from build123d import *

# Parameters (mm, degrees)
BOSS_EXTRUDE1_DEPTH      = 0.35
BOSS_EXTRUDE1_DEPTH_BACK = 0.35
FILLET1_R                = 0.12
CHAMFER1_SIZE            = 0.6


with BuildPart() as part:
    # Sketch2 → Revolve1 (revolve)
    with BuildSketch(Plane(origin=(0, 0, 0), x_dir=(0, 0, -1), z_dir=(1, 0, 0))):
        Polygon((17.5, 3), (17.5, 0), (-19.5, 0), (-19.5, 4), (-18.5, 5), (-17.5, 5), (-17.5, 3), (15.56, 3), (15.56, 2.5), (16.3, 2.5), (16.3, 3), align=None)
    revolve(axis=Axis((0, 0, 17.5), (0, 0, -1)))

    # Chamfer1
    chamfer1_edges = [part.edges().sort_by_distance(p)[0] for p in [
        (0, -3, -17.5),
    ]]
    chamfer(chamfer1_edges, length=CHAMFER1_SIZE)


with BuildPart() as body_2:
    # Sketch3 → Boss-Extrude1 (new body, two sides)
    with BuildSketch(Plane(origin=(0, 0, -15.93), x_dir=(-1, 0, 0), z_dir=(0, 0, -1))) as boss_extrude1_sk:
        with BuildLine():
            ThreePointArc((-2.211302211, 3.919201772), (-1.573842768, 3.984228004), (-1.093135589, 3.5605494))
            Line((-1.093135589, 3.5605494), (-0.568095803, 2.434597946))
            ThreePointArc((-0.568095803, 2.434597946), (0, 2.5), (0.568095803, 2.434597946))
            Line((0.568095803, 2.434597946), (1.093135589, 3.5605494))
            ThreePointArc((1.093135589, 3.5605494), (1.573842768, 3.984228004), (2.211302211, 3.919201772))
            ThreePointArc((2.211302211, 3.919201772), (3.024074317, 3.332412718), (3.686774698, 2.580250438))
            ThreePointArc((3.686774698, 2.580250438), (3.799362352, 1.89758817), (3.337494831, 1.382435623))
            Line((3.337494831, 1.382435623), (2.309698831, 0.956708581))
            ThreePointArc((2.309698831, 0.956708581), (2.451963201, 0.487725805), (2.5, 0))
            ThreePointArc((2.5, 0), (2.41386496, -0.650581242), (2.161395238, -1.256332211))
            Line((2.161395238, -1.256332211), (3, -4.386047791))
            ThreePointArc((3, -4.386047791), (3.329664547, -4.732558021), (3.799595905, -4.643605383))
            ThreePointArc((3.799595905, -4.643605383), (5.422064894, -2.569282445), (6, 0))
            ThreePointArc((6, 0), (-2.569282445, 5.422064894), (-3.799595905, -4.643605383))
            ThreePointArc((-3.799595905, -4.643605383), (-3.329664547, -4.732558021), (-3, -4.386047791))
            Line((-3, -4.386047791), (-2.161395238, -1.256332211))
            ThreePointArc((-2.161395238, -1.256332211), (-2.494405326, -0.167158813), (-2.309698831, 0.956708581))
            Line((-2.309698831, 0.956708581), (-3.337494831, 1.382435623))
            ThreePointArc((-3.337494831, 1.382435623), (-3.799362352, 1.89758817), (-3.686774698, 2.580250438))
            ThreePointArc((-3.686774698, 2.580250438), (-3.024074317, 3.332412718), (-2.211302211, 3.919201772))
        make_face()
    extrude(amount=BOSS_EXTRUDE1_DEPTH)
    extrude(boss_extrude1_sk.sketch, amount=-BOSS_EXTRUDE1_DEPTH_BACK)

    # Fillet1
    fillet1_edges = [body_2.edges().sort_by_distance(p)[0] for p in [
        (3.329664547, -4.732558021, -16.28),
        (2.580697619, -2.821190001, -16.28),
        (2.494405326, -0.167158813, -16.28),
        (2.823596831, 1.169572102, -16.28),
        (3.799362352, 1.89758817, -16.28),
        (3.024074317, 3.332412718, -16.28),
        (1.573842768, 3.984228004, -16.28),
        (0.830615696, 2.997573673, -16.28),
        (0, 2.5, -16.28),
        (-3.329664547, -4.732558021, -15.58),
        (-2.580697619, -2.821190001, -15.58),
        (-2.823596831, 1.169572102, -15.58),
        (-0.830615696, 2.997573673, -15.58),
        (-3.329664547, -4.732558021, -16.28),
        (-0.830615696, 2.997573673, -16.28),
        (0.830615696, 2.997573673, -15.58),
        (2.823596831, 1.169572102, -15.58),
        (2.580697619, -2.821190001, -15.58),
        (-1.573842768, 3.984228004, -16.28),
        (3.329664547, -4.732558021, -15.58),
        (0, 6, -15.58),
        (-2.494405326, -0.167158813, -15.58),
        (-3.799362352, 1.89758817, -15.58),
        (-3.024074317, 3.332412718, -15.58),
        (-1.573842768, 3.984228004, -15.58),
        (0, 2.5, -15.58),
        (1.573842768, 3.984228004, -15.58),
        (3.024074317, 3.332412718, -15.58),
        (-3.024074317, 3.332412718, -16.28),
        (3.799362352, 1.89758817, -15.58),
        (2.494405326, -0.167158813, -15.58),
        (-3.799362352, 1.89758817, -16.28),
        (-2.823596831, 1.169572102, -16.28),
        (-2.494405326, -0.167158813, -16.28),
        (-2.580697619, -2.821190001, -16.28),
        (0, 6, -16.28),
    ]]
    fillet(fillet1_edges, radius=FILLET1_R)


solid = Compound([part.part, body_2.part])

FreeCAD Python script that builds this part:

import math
import FreeCAD as App
import Part
import Sketcher
Q = App.Units.Quantity


def edges_at(feature, points):
    """Names of the edges that pass closest to the given points."""
    edges = feature.Shape.Edges
    near = lambda p: min(range(len(edges)), key=lambda i: edges[i].distToShape(Part.Vertex(*p))[0])
    return sorted({f"Edge{near(p) + 1}" for p in points})


def add_polygon(sketch, points):
    """Adds a closed chain of lines whose ends are joined by coincident constraints."""
    first, n = sketch.GeometryCount, len(points)
    for a, b in zip(points, points[1:] + points[:1]):
        sketch.addGeometry(Part.LineSegment(App.Vector(*a, 0), App.Vector(*b, 0)), False)
    for i in range(n):
        sketch.addConstraint(Sketcher.Constraint("Coincident", first + i, 2, first + (i + 1) % n, 1))

doc = App.newDocument("Part")
body = doc.addObject("PartDesign::Body", "Body")

# Sketch on YZ plane
sketch1 = body.newObject("Sketcher::SketchObject", "Sketch")
sketch1.AttachmentSupport = (doc.getObject("YZ_Plane"), [""])
sketch1.MapMode = "FlatFace"
add_polygon(sketch1, [(0, -17.5), (3, -17.5), (3, -16.3), (2.5, -16.3), (2.5, -15.6), (3, -15.6), (3, 17.5), (5, 17.5), (5, 18.5), (4, 19.5), (0, 19.5)])  # lines 0-10
sketch1.addConstraint(Sketcher.Constraint("Horizontal", 0))
sketch1.addConstraint(Sketcher.Constraint("Vertical", 1))
sketch1.addConstraint(Sketcher.Constraint("Horizontal", 2))
sketch1.addConstraint(Sketcher.Constraint("Vertical", 3))
sketch1.addConstraint(Sketcher.Constraint("Horizontal", 4))
sketch1.addConstraint(Sketcher.Constraint("Vertical", 5))
sketch1.addConstraint(Sketcher.Constraint("Horizontal", 6))
sketch1.addConstraint(Sketcher.Constraint("Vertical", 7))
sketch1.addConstraint(Sketcher.Constraint("Horizontal", 9))
sketch1.addConstraint(Sketcher.Constraint("Vertical", 10))
sketch1.addConstraint(Sketcher.Constraint("Symmetric", 0, 2, 5, 2, -1))
sketch1.addConstraint(Sketcher.Constraint("PointOnObject", 9, 2, -2))
sketch1.addConstraint(Sketcher.Constraint("DistanceX", 0, 1, 0, 2, 3.0))
sketch1.addConstraint(Sketcher.Constraint("DistanceX", 6, 1, 6, 2, 2.0))
sketch1.addConstraint(Sketcher.Constraint("DistanceX", 9, 2, 9, 1, 4.0))
sketch1.addConstraint(Sketcher.Constraint("DistanceY", 7, 1, 7, 2, 1.0))
sketch1.addConstraint(Sketcher.Constraint("DistanceY", 10, 2, 10, 1, 37.0))
sketch1.addConstraint(Sketcher.Constraint("Angle", 8, Q("135 deg")))
sketch1.addConstraint(Sketcher.Constraint("DistanceX", 2, 2, 2, 1, 0.5))
sketch1.addConstraint(Sketcher.Constraint("DistanceY", 1, 1, 1, 2, 1.2))
sketch1.addConstraint(Sketcher.Constraint("DistanceY", 3, 1, 3, 2, 0.74))
revolution = body.newObject("PartDesign::Revolution", "Revolution")
revolution.Profile = sketch1
revolution.ReferenceAxis = (sketch1, ["V_Axis"])
revolution.Angle = 360
doc.recompute()

chamfer = body.newObject("PartDesign::Chamfer", "Chamfer")
chamfer.Base = (revolution, edges_at(revolution, [(0, -3, -17.5)]))
chamfer.Size = 0.6
body2 = doc.addObject("PartDesign::Body", "Body001")

# Sketch on XY plane
sketch2 = body2.newObject("Sketcher::SketchObject", "Sketch001")
sketch2.AttachmentSupport = (doc.getObject("XY_Plane001"), [""])
sketch2.MapMode = "FlatFace"
sketch2.AttachmentOffset = App.Placement(App.Vector(0, 0, -15.93), App.Rotation())
sketch2.addGeometry(Part.ArcOfCircle(Part.Circle(App.Vector(1.82, 3.22, 0), App.Vector(0, 0, 1), 0.8), math.radians(61), math.radians(155)), False)
sketch2.addGeometry(Part.LineSegment(App.Vector(1.09, 3.56, 0), App.Vector(0.57, 2.43, 0)), False)
sketch2.addGeometry(Part.ArcOfCircle(Part.Circle(App.Vector(0, 0, 0), App.Vector(0, 0, 1), 2.5), math.radians(77), math.radians(103)), False)
sketch2.addGeometry(Part.LineSegment(App.Vector(-0.57, 2.43, 0), App.Vector(-1.09, 3.56, 0)), False)
sketch2.addGeometry(Part.ArcOfCircle(Part.Circle(App.Vector(-1.82, 3.22, 0), App.Vector(0, 0, 1), 0.8), math.radians(25), math.radians(119)), False)
sketch2.addGeometry(Part.ArcOfCircle(Part.Circle(App.Vector(0, 0, 0), App.Vector(0, 0, 1), 4.5), math.radians(119), math.radians(145)), False)
sketch2.addGeometry(Part.ArcOfCircle(Part.Circle(App.Vector(-3.03, 2.12, 0), App.Vector(0, 0, 1), 0.8), math.radians(145), math.radians(247)), False)
sketch2.addGeometry(Part.LineSegment(App.Vector(-3.34, 1.38, 0), App.Vector(-2.31, 0.96, 0)), False)
sketch2.addGeometry(Part.ArcOfCircle(Part.Circle(App.Vector(0, 0, 0), App.Vector(0, 0, 1), 2.5), math.radians(157), math.radians(180)), False)
sketch2.addGeometry(Part.ArcOfCircle(Part.Circle(App.Vector(0, 0, 0), App.Vector(0, 0, 1), 2.5), math.radians(-180), math.radians(-150)), False)
sketch2.addGeometry(Part.LineSegment(App.Vector(-2.16, -1.26, 0), App.Vector(-3, -4.39, 0)), False)
sketch2.addGeometry(Part.ArcOfCircle(Part.Circle(App.Vector(-3.48, -4.26, 0), App.Vector(0, 0, 1), 0.5), math.radians(-129), math.radians(-15)), False)
sketch2.addGeometry(Part.ArcOfCircle(Part.Circle(App.Vector(0, 0, 0), App.Vector(0, 0, 1), 6), math.radians(-180), math.radians(-129)), False)
sketch2.addGeometry(Part.ArcOfCircle(Part.Circle(App.Vector(0, 0, 0), App.Vector(0, 0, 1), 6), math.radians(-51), math.radians(180)), False)
sketch2.addGeometry(Part.ArcOfCircle(Part.Circle(App.Vector(3.48, -4.26, 0), App.Vector(0, 0, 1), 0.5), math.radians(-165), math.radians(-51)), False)
sketch2.addGeometry(Part.LineSegment(App.Vector(3, -4.39, 0), App.Vector(2.16, -1.26, 0)), False)
sketch2.addGeometry(Part.ArcOfCircle(Part.Circle(App.Vector(0, 0, 0), App.Vector(0, 0, 1), 2.5), math.radians(-30), math.radians(23)), False)
sketch2.addGeometry(Part.LineSegment(App.Vector(2.31, 0.96, 0), App.Vector(3.34, 1.38, 0)), False)
sketch2.addGeometry(Part.ArcOfCircle(Part.Circle(App.Vector(3.03, 2.12, 0), App.Vector(0, 0, 1), 0.8), math.radians(-67), math.radians(35)), False)
sketch2.addGeometry(Part.ArcOfCircle(Part.Circle(App.Vector(0, 0, 0), App.Vector(0, 0, 1), 4.5), math.radians(35), math.radians(61)), False)
sketch2.addConstraint(Sketcher.Constraint("Tangent", 0, 2, 1, 1))
sketch2.addConstraint(Sketcher.Constraint("Coincident", 1, 2, 2, 1))
sketch2.addConstraint(Sketcher.Constraint("Coincident", 2, 2, 3, 1))
sketch2.addConstraint(Sketcher.Constraint("Tangent", 3, 2, 4, 1))
sketch2.addConstraint(Sketcher.Constraint("Tangent", 4, 2, 5, 1))
sketch2.addConstraint(Sketcher.Constraint("Tangent", 5, 2, 6, 1))
sketch2.addConstraint(Sketcher.Constraint("Tangent", 6, 2, 7, 1))
sketch2.addConstraint(Sketcher.Constraint("Coincident", 7, 2, 8, 1))
sketch2.addConstraint(Sketcher.Constraint("Tangent", 8, 2, 9, 1))
sketch2.addConstraint(Sketcher.Constraint("Coincident", 9, 2, 10, 1))
sketch2.addConstraint(Sketcher.Constraint("Tangent", 10, 2, 11, 2))
sketch2.addConstraint(Sketcher.Constraint("Tangent", 11, 1, 12, 2))
sketch2.addConstraint(Sketcher.Constraint("Tangent", 12, 1, 13, 2))
sketch2.addConstraint(Sketcher.Constraint("Tangent", 13, 1, 14, 2))
sketch2.addConstraint(Sketcher.Constraint("Tangent", 14, 1, 15, 1))
sketch2.addConstraint(Sketcher.Constraint("Coincident", 15, 2, 16, 1))
sketch2.addConstraint(Sketcher.Constraint("Coincident", 16, 2, 17, 1))
sketch2.addConstraint(Sketcher.Constraint("Tangent", 17, 2, 18, 1))
sketch2.addConstraint(Sketcher.Constraint("Tangent", 18, 2, 19, 1))
sketch2.addConstraint(Sketcher.Constraint("Tangent", 19, 2, 0, 1))
sketch2.addConstraint(Sketcher.Constraint("Coincident", 2, 3, -1, 1))
sketch2.addConstraint(Sketcher.Constraint("Coincident", 5, 3, -1, 1))
sketch2.addConstraint(Sketcher.Constraint("Coincident", 8, 3, -1, 1))
sketch2.addConstraint(Sketcher.Constraint("Coincident", 12, 3, -1, 1))
sketch2.addConstraint(Sketcher.Constraint("Coincident", 16, 3, -1, 1))
sketch2.addConstraint(Sketcher.Constraint("Coincident", 19, 3, -1, 1))
sketch2.addConstraint(Sketcher.Constraint("Equal", 0, 4))
sketch2.addConstraint(Sketcher.Constraint("Equal", 4, 6))
sketch2.addConstraint(Sketcher.Constraint("Equal", 2, 8))
sketch2.addConstraint(Sketcher.Constraint("Equal", 8, 9))
sketch2.addConstraint(Sketcher.Constraint("Equal", 12, 13))
sketch2.addConstraint(Sketcher.Constraint("Equal", 11, 14))
sketch2.addConstraint(Sketcher.Constraint("Equal", 9, 16))
sketch2.addConstraint(Sketcher.Constraint("Equal", 6, 18))
sketch2.addConstraint(Sketcher.Constraint("Equal", 5, 19))
sketch2.addConstraint(Sketcher.Constraint("Symmetric", 0, 2, 3, 2, -2))
sketch2.addConstraint(Sketcher.Constraint("Symmetric", 10, 2, 14, 1, -2))
sketch2.addConstraint(Sketcher.Constraint("Symmetric", 6, 2, 17, 2, -2))
sketch2.addConstraint(Sketcher.Constraint("PointOnObject", 8, 2, -1))
sketch2.addConstraint(Sketcher.Constraint("PointOnObject", 12, 1, -1))
sketch2.addConstraint(Sketcher.Constraint("Radius", 12, 6.0))
sketch2.addConstraint(Sketcher.Constraint("Radius", 0, 0.8))
sketch2.addConstraint(Sketcher.Constraint("Radius", 2, 2.5))
sketch2.addConstraint(Sketcher.Constraint("Radius", 5, 4.5))
sketch2.addConstraint(Sketcher.Constraint("Radius", 11, 0.5))
sketch2.addConstraint(Sketcher.Constraint("Angle", 1, Q("-115 deg")))
sketch2.addConstraint(Sketcher.Constraint("Angle", 10, Q("-105 deg")))
sketch2.addConstraint(Sketcher.Constraint("DistanceX", 10, 2, -1, 1, 3.0))
sketch2.addConstraint(Sketcher.Constraint("Angle", 7, Q("-22.5 deg")))
sketch2.addConstraint(Sketcher.Constraint("DistanceY", -1, 1, 4, 2, 3.919202))
sketch2.addConstraint(Sketcher.Constraint("DistanceX", 7, 2, -1, 1, 2.309699))
pad1 = body2.newObject("PartDesign::Pad", "Pad")
pad1.Profile = sketch2
pad1.Type = "TwoLengths"
pad1.Length = 0.35
pad1.Length2 = 0.35
pad1.Reversed = True
doc.recompute()

fillet = body2.newObject("PartDesign::Fillet", "Fillet")
fillet.Base = (pad1, edges_at(pad1, [
    (3.33, -4.733, -16.28),
    (2.581, -2.821, -16.28),
    (2.494, -0.167, -16.28),
    (2.824, 1.17, -16.28),
    (3.799, 1.898, -16.28),
    (3.024, 3.332, -16.28),
    (1.574, 3.984, -16.28),
    (0.831, 2.998, -16.28),
    (0, 2.5, -16.28),
    (-3.33, -4.733, -15.58),
    (-2.581, -2.821, -15.58),
    (-2.824, 1.17, -15.58),
    (-0.831, 2.998, -15.58),
    (-3.33, -4.733, -16.28),
    (-0.831, 2.998, -16.28),
    (0.831, 2.998, -15.58),
    (2.824, 1.17, -15.58),
    (2.581, -2.821, -15.58),
    (-1.574, 3.984, -16.28),
    (3.33, -4.733, -15.58),
    (2.569, 5.422, -15.58),
    (-2.414, -0.651, -15.58),
    (-3.799, 1.898, -15.58),
    (-3.024, 3.332, -15.58),
    (-1.574, 3.984, -15.58),
    (0, 2.5, -15.58),
    (1.574, 3.984, -15.58),
    (3.024, 3.332, -15.58),
    (-3.024, 3.332, -16.28),
    (3.799, 1.898, -15.58),
    (2.494, -0.167, -15.58),
    (-3.799, 1.898, -16.28),
    (-2.824, 1.17, -16.28),
    (-2.414, -0.651, -16.28),
    (-2.581, -2.821, -16.28),
    (2.569, 5.422, -16.28),
]))
fillet.Radius = 0.12

doc.recompute()
